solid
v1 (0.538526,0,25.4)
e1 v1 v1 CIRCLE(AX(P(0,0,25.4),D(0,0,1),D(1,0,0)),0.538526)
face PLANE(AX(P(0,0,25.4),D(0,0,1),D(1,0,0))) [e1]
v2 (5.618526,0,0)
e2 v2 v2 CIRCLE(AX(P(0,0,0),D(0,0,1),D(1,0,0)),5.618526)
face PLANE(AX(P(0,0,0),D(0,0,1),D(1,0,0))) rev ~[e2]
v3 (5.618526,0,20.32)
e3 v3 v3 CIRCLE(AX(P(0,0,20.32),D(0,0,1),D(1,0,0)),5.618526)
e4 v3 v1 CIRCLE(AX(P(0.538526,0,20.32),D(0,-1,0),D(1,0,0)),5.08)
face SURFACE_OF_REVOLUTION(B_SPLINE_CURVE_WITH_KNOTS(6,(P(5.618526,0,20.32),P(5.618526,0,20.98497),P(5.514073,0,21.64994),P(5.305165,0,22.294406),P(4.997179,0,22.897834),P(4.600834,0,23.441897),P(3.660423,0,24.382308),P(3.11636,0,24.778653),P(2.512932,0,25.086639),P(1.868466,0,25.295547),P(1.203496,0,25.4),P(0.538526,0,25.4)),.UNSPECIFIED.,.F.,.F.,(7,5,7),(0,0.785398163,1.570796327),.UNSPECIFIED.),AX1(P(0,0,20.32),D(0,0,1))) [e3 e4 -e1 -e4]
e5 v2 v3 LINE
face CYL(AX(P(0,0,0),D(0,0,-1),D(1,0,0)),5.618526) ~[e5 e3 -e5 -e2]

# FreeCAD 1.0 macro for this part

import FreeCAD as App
import Part
import Sketcher

V = App.Vector
Q = App.Units.Quantity


def edges_at(feature, points):
    """Names of the edges that pass closest to the given points."""
    edges = feature.Shape.Edges
    near = lambda p: min(range(len(edges)), key=lambda i: edges[i].distToShape(Part.Vertex(*p))[0])
    return sorted({f"Edge{near(p) + 1}" for p in points})

doc = App.newDocument("Part")
body = doc.addObject("PartDesign::Body", "Body")

# Sketch on XY plane
sketch1 = doc.addObject("Sketcher::SketchObject", "Sketch")
body.addObject(sketch1)
sketch1.AttachmentSupport = (doc.XY_Plane, [""])
sketch1.MapMode = "FlatFace"
sketch1.addGeometry(Part.Circle(V(0, 0, 0), V(0, 0, 1), 6), False)
sketch1.addConstraint(Sketcher.Constraint("Coincident", 0, 3, -1, 1))
sketch1.addConstraint(Sketcher.Constraint("Diameter", 0, 11.237052))
pad1 = doc.addObject("PartDesign::Pad", "Pad")
body.addObject(pad1)
pad1.Profile = sketch1
pad1.Length = Q("1 in")
doc.recompute()

fillet = doc.addObject("PartDesign::Fillet", "Fillet")
body.addObject(fillet)
fillet.Base = (pad1, edges_at(pad1, [(-5.619, 0, 25.4)]))
fillet.Radius = Q("0.2 in")

# Sketch on XY plane
sketch2 = doc.addObject("Sketcher::SketchObject", "Sketch001")
body.addObject(sketch2)
sketch2.AttachmentSupport = (doc.XY_Plane, [""])
sketch2.MapMode = "FlatFace"
sketch2.addGeometry(Part.Circle(V(0, 0, 0), V(0, 0, 1), 3.8), False)
sketch2.addConstraint(Sketcher.Constraint("Coincident", 0, 3, -1, 1))
sketch2.addConstraint(Sketcher.Constraint("Diameter", 0, Q("0.3 in")))
pad2 = doc.addObject("PartDesign::Pad", "Pad001")
body.addObject(pad2)
pad2.Profile = sketch2
pad2.Length = 3

doc.recompute()
